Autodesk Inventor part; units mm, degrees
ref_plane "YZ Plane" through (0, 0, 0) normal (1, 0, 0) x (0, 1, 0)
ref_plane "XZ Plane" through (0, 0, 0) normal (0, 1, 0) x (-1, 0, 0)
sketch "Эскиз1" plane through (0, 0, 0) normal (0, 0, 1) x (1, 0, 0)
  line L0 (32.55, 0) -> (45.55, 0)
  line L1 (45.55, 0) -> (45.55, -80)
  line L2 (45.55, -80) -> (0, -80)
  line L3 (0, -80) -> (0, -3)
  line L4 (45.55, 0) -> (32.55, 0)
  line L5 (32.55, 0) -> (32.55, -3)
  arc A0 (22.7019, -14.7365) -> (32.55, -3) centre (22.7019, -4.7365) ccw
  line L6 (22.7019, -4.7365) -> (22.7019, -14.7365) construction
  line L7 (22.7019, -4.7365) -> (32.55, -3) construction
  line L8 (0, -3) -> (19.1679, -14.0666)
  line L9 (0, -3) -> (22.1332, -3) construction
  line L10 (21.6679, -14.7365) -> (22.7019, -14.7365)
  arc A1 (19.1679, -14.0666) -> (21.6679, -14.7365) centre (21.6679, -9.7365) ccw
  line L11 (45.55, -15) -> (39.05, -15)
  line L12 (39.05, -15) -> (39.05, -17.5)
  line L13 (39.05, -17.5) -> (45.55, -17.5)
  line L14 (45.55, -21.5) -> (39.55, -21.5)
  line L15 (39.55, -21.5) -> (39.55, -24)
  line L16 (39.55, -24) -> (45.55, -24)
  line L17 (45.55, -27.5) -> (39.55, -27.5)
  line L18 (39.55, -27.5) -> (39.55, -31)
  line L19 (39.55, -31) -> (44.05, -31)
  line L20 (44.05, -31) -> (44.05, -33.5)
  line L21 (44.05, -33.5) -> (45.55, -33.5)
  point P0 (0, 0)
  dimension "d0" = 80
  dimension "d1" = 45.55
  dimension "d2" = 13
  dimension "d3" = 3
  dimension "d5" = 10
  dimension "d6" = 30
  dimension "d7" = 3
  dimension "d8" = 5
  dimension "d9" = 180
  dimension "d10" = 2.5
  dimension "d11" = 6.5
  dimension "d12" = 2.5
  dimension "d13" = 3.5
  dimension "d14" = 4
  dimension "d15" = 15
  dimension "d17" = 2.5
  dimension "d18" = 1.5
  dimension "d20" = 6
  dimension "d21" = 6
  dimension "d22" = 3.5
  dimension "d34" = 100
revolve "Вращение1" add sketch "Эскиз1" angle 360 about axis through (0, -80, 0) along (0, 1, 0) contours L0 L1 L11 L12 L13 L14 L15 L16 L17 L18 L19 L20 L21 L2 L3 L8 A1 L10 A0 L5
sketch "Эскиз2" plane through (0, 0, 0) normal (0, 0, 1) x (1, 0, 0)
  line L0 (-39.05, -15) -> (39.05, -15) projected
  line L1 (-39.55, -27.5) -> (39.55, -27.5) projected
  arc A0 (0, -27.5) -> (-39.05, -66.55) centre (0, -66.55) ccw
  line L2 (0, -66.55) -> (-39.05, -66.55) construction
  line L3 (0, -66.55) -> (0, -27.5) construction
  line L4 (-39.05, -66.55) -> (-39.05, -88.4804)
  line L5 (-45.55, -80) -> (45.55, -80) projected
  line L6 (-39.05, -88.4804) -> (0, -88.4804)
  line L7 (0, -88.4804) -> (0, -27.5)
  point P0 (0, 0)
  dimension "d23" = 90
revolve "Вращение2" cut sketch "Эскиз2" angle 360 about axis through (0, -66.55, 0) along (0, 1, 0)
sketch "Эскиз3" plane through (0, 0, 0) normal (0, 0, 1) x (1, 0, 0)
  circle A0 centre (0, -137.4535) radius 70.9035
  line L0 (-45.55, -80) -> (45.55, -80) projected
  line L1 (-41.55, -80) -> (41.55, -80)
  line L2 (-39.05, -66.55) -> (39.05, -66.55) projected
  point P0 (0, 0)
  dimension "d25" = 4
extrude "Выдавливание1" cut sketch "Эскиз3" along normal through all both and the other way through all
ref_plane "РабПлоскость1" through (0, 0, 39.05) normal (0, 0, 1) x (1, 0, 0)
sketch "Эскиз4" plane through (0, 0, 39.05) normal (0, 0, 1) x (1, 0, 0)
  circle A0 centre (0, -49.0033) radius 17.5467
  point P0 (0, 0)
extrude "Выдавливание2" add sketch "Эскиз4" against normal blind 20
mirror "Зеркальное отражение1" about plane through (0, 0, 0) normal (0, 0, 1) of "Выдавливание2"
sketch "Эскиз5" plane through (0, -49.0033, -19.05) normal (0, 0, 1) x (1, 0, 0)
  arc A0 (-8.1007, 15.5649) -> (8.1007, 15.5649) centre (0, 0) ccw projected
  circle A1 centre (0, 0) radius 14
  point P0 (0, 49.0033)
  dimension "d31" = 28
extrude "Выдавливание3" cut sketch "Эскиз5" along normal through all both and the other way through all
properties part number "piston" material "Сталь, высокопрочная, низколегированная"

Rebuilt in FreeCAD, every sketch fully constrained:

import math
import FreeCAD as App
import Part
import Sketcher

V = App.Vector

doc = App.newDocument("Part")
body = doc.addObject("PartDesign::Body", "Body")

# Sketch on XY plane
sketch1 = body.newObject("Sketcher::SketchObject", "Sketch")
sketch1.AttachmentSupport = (doc.getObject("XY_Plane"), [""])
sketch1.MapMode = "FlatFace"
sketch1.addGeometry([
    Part.LineSegment(V(45.5, 0, 0), V(32.5, 0, 0)),  # 0
    Part.LineSegment(V(32.5, 0, 0), V(32.5, -3, 0)),  # 1
    Part.ArcOfCircle(Part.Circle(V(22.7, -4.7, 0), V(0, 0, 1), 10), math.radians(-90), math.radians(10)),  # 2
    Part.LineSegment(V(22.7, -14.7, 0), V(21.7, -14.7, 0)),  # 3
    Part.ArcOfCircle(Part.Circle(V(21.7, -9.7, 0), V(0, 0, 1), 5), math.radians(-120), math.radians(-90)),  # 4
    Part.LineSegment(V(19.2, -14.1, 0), V(0, -3, 0)),  # 5
    Part.LineSegment(V(0, -3, 0), V(0, -80, 0)),  # 6
    Part.LineSegment(V(0, -80, 0), V(45.5, -80, 0)),  # 7
    Part.LineSegment(V(45.5, -80, 0), V(45.5, -33.5, 0)),  # 8
    Part.LineSegment(V(45.5, -33.5, 0), V(44, -33.5, 0)),  # 9
    Part.LineSegment(V(44, -33.5, 0), V(44, -31, 0)),  # 10
    Part.LineSegment(V(44, -31, 0), V(39.5, -31, 0)),  # 11
    Part.LineSegment(V(39.5, -31, 0), V(39.5, -27.5, 0)),  # 12
    Part.LineSegment(V(39.5, -27.5, 0), V(45.5, -27.5, 0)),  # 13
    Part.LineSegment(V(45.5, -27.5, 0), V(45.5, -24, 0)),  # 14
    Part.LineSegment(V(45.5, -24, 0), V(39.5, -24, 0)),  # 15
    Part.LineSegment(V(39.5, -24, 0), V(39.5, -21.5, 0)),  # 16
    Part.LineSegment(V(39.5, -21.5, 0), V(45.5, -21.5, 0)),  # 17
    Part.LineSegment(V(45.5, -21.5, 0), V(45.5, -17.5, 0)),  # 18
    Part.LineSegment(V(45.5, -17.5, 0), V(39, -17.5, 0)),  # 19
    Part.LineSegment(V(39, -17.5, 0), V(39, -15, 0)),  # 20
    Part.LineSegment(V(39, -15, 0), V(45.5, -15, 0)),  # 21
    Part.LineSegment(V(45.5, -15, 0), V(45.5, 0, 0)),  # 22
], False)
sketch1.addConstraint([
    Sketcher.Constraint("Coincident", 0, 2, 1, 1),
    Sketcher.Constraint("Coincident", 1, 2, 2, 2),
    Sketcher.Constraint("Tangent", 2, 1, 3, 1),
    Sketcher.Constraint("Tangent", 3, 2, 4, 2),
    Sketcher.Constraint("Tangent", 4, 1, 5, 1),
    Sketcher.Constraint("Coincident", 5, 2, 6, 1),
    Sketcher.Constraint("Coincident", 6, 2, 7, 1),
    Sketcher.Constraint("Coincident", 7, 2, 8, 1),
    Sketcher.Constraint("Coincident", 8, 2, 9, 1),
    Sketcher.Constraint("Coincident", 9, 2, 10, 1),
    Sketcher.Constraint("Coincident", 10, 2, 11, 1),
    Sketcher.Constraint("Coincident", 11, 2, 12, 1),
    Sketcher.Constraint("Coincident", 12, 2, 13, 1),
    Sketcher.Constraint("Coincident", 13, 2, 14, 1),
    Sketcher.Constraint("Coincident", 14, 2, 15, 1),
    Sketcher.Constraint("Coincident", 15, 2, 16, 1),
    Sketcher.Constraint("Coincident", 16, 2, 17, 1),
    Sketcher.Constraint("Coincident", 17, 2, 18, 1),
    Sketcher.Constraint("Coincident", 18, 2, 19, 1),
    Sketcher.Constraint("Coincident", 19, 2, 20, 1),
    Sketcher.Constraint("Coincident", 20, 2, 21, 1),
    Sketcher.Constraint("Coincident", 21, 2, 22, 1),
    Sketcher.Constraint("Coincident", 22, 2, 0, 1),
    Sketcher.Constraint("Horizontal", 0),
    Sketcher.Constraint("Vertical", 1),
    Sketcher.Constraint("Horizontal", 3),
    Sketcher.Constraint("Vertical", 6),
    Sketcher.Constraint("Horizontal", 7),
    Sketcher.Constraint("Vertical", 8),
    Sketcher.Constraint("Horizontal", 9),
    Sketcher.Constraint("Vertical", 10),
    Sketcher.Constraint("Horizontal", 11),
    Sketcher.Constraint("Vertical", 12),
    Sketcher.Constraint("Horizontal", 13),
    Sketcher.Constraint("Vertical", 14),
    Sketcher.Constraint("Horizontal", 15),
    Sketcher.Constraint("Vertical", 16),
    Sketcher.Constraint("Horizontal", 17),
    Sketcher.Constraint("Vertical", 18),
    Sketcher.Constraint("Horizontal", 19),
    Sketcher.Constraint("Vertical", 20),
    Sketcher.Constraint("Horizontal", 21),
    Sketcher.Constraint("Vertical", 22),
    Sketcher.Constraint("PointOnObject", 0, 2, -1),
    Sketcher.Constraint("PointOnObject", 5, 2, -2),
    Sketcher.Constraint("Horizontal", 1, 2, 5, 2),
    Sketcher.Constraint("Vertical", 8, 2, 13, 2),
    Sketcher.Constraint("Vertical", 12, 2, 15, 2),
    Sketcher.Constraint("Vertical", 14, 2, 17, 2),
    Sketcher.Constraint("Vertical", 18, 2, 21, 2),
    Sketcher.Constraint("Equal", 12, 14),
    Sketcher.Constraint("Equal", 10, 16),
    Sketcher.Constraint("Equal", 16, 20),
    Sketcher.Constraint("Radius", 2, 10.0),
    Sketcher.Constraint("Radius", 4, 5.0),
    Sketcher.Constraint("DistanceX", 0, 2, 0, 1, 13.0),
    Sketcher.Constraint("DistanceX", 13, 1, 13, 2, 6.0),
    Sketcher.Constraint("DistanceY", 1, 2, 1, 1, 3.0),
    Sketcher.Constraint("DistanceY", 18, 1, 18, 2, 4.0),
    Sketcher.Constraint("DistanceY", 22, 1, 22, 2, 15.0),
    Sketcher.Constraint("DistanceX", 9, 2, 9, 1, 1.5),
    Sketcher.Constraint("DistanceX", 19, 2, 19, 1, 6.5),
    Sketcher.Constraint("DistanceY", 10, 1, 10, 2, 2.5),
    Sketcher.Constraint("DistanceY", 12, 1, 12, 2, 3.5),
    Sketcher.Constraint("DistanceY", 6, 2, -1, 1, 80.0),
    Sketcher.Constraint("DistanceX", 7, 1, 7, 2, 45.55),
    Sketcher.Constraint("DistanceX", 4, 1, 3, 2, 2.5),
    Sketcher.Constraint("DistanceX", 3, 2, 3, 1, 1.034),
])
revolution = body.newObject("PartDesign::Revolution", "Revolution")
revolution.Profile = sketch1
revolution.ReferenceAxis = (sketch1, ["V_Axis"])
revolution.Angle = 360

# Sketch on XY plane
sketch2 = body.newObject("Sketcher::SketchObject", "Sketch001")
sketch2.AttachmentSupport = (doc.getObject("XY_Plane"), [""])
sketch2.MapMode = "FlatFace"
sketch2.addGeometry([
    Part.ArcOfCircle(Part.Circle(V(0, -67, 0), V(0, 0, 1), 39), math.radians(90), math.radians(180)),
    Part.LineSegment(V(-39, -67, 0), V(-39, -88, 0)),
    Part.LineSegment(V(-39, -88, 0), V(0, -88, 0)),
    Part.LineSegment(V(0, -88, 0), V(0, -28, 0)),
], False)
sketch2.addConstraint([
    Sketcher.Constraint("Tangent", 0, 2, 1, 1),
    Sketcher.Constraint("Coincident", 1, 2, 2, 1),
    Sketcher.Constraint("Coincident", 2, 2, 3, 1),
    Sketcher.Constraint("Coincident", 3, 2, 0, 1),
    Sketcher.Constraint("Vertical", 1),
    Sketcher.Constraint("Horizontal", 2),
    Sketcher.Constraint("Vertical", 3),
    Sketcher.Constraint("PointOnObject", 0, 3, -2),
    Sketcher.Constraint("PointOnObject", 2, 2, -2),
    Sketcher.Constraint("Radius", 0, 39.05),
    Sketcher.Constraint("DistanceY", 3, 2, -1, 1, 27.5),
    Sketcher.Constraint("DistanceY", 1, 2, 1, 1, 21.9304),
])
groove = body.newObject("PartDesign::Groove", "Groove")
groove.Profile = sketch2
groove.ReferenceAxis = (sketch2, ["V_Axis"])
groove.Angle = 360

# Sketch on XY plane
sketch3 = body.newObject("Sketcher::SketchObject", "Sketch002")
sketch3.AttachmentSupport = (doc.getObject("XY_Plane"), [""])
sketch3.MapMode = "FlatFace"
sketch3.addGeometry(Part.Circle(V(0, -137, 0), V(0, 0, 1), 71), False)
sketch3.addConstraint([
    Sketcher.Constraint("PointOnObject", 0, 3, -2),
    Sketcher.Constraint("Diameter", 0, 141.807),
    Sketcher.Constraint("DistanceY", 0, 3, -1, 1, 137.4535),
])
pocket1 = body.newObject("PartDesign::Pocket", "Pocket")
pocket1.Profile = sketch3
pocket1.Type = "ThroughAll"
pocket1.Midplane = True

# Sketch on XY plane
sketch4 = body.newObject("Sketcher::SketchObject", "Sketch003")
sketch4.AttachmentSupport = (doc.getObject("XY_Plane"), [""])
sketch4.MapMode = "FlatFace"
sketch4.AttachmentOffset = App.Placement(V(0, 0, 39.05), App.Rotation())
sketch4.addGeometry(Part.Circle(V(0, -49, 0), V(0, 0, 1), 18), False)
sketch4.addConstraint([
    Sketcher.Constraint("PointOnObject", 0, 3, -2),
    Sketcher.Constraint("Diameter", 0, 35.0934),
    Sketcher.Constraint("DistanceY", 0, 3, -1, 1, 49.0033),
])
pad1 = body.newObject("PartDesign::Pad", "Pad")
pad1.Profile = sketch4
pad1.Length = 20
pad1.Reversed = True
doc.recompute()

mirrored = body.newObject("PartDesign::Mirrored", "Mirrored")
mirrored.Originals = [pad1]
mirrored.MirrorPlane = (doc.getObject("XY_Plane"), [""])
body.Tip = mirrored

# Sketch on XY plane
sketch5 = body.newObject("Sketcher::SketchObject", "Sketch004")
sketch5.AttachmentSupport = (doc.getObject("XY_Plane"), [""])
sketch5.MapMode = "FlatFace"
sketch5.AttachmentOffset = App.Placement(V(0, 0, -19.05), App.Rotation())
sketch5.addGeometry(Part.Circle(V(0, -49, 0), V(0, 0, 1), 14), False)
sketch5.addConstraint([
    Sketcher.Constraint("PointOnObject", 0, 3, -2),
    Sketcher.Constraint("Diameter", 0, 28.0),
    Sketcher.Constraint("DistanceY", 0, 3, -1, 1, 49.0033),
])
pocket2 = body.newObject("PartDesign::Pocket", "Pocket001")
pocket2.Profile = sketch5
pocket2.Type = "ThroughAll"
pocket2.Midplane = True

doc.recompute()
